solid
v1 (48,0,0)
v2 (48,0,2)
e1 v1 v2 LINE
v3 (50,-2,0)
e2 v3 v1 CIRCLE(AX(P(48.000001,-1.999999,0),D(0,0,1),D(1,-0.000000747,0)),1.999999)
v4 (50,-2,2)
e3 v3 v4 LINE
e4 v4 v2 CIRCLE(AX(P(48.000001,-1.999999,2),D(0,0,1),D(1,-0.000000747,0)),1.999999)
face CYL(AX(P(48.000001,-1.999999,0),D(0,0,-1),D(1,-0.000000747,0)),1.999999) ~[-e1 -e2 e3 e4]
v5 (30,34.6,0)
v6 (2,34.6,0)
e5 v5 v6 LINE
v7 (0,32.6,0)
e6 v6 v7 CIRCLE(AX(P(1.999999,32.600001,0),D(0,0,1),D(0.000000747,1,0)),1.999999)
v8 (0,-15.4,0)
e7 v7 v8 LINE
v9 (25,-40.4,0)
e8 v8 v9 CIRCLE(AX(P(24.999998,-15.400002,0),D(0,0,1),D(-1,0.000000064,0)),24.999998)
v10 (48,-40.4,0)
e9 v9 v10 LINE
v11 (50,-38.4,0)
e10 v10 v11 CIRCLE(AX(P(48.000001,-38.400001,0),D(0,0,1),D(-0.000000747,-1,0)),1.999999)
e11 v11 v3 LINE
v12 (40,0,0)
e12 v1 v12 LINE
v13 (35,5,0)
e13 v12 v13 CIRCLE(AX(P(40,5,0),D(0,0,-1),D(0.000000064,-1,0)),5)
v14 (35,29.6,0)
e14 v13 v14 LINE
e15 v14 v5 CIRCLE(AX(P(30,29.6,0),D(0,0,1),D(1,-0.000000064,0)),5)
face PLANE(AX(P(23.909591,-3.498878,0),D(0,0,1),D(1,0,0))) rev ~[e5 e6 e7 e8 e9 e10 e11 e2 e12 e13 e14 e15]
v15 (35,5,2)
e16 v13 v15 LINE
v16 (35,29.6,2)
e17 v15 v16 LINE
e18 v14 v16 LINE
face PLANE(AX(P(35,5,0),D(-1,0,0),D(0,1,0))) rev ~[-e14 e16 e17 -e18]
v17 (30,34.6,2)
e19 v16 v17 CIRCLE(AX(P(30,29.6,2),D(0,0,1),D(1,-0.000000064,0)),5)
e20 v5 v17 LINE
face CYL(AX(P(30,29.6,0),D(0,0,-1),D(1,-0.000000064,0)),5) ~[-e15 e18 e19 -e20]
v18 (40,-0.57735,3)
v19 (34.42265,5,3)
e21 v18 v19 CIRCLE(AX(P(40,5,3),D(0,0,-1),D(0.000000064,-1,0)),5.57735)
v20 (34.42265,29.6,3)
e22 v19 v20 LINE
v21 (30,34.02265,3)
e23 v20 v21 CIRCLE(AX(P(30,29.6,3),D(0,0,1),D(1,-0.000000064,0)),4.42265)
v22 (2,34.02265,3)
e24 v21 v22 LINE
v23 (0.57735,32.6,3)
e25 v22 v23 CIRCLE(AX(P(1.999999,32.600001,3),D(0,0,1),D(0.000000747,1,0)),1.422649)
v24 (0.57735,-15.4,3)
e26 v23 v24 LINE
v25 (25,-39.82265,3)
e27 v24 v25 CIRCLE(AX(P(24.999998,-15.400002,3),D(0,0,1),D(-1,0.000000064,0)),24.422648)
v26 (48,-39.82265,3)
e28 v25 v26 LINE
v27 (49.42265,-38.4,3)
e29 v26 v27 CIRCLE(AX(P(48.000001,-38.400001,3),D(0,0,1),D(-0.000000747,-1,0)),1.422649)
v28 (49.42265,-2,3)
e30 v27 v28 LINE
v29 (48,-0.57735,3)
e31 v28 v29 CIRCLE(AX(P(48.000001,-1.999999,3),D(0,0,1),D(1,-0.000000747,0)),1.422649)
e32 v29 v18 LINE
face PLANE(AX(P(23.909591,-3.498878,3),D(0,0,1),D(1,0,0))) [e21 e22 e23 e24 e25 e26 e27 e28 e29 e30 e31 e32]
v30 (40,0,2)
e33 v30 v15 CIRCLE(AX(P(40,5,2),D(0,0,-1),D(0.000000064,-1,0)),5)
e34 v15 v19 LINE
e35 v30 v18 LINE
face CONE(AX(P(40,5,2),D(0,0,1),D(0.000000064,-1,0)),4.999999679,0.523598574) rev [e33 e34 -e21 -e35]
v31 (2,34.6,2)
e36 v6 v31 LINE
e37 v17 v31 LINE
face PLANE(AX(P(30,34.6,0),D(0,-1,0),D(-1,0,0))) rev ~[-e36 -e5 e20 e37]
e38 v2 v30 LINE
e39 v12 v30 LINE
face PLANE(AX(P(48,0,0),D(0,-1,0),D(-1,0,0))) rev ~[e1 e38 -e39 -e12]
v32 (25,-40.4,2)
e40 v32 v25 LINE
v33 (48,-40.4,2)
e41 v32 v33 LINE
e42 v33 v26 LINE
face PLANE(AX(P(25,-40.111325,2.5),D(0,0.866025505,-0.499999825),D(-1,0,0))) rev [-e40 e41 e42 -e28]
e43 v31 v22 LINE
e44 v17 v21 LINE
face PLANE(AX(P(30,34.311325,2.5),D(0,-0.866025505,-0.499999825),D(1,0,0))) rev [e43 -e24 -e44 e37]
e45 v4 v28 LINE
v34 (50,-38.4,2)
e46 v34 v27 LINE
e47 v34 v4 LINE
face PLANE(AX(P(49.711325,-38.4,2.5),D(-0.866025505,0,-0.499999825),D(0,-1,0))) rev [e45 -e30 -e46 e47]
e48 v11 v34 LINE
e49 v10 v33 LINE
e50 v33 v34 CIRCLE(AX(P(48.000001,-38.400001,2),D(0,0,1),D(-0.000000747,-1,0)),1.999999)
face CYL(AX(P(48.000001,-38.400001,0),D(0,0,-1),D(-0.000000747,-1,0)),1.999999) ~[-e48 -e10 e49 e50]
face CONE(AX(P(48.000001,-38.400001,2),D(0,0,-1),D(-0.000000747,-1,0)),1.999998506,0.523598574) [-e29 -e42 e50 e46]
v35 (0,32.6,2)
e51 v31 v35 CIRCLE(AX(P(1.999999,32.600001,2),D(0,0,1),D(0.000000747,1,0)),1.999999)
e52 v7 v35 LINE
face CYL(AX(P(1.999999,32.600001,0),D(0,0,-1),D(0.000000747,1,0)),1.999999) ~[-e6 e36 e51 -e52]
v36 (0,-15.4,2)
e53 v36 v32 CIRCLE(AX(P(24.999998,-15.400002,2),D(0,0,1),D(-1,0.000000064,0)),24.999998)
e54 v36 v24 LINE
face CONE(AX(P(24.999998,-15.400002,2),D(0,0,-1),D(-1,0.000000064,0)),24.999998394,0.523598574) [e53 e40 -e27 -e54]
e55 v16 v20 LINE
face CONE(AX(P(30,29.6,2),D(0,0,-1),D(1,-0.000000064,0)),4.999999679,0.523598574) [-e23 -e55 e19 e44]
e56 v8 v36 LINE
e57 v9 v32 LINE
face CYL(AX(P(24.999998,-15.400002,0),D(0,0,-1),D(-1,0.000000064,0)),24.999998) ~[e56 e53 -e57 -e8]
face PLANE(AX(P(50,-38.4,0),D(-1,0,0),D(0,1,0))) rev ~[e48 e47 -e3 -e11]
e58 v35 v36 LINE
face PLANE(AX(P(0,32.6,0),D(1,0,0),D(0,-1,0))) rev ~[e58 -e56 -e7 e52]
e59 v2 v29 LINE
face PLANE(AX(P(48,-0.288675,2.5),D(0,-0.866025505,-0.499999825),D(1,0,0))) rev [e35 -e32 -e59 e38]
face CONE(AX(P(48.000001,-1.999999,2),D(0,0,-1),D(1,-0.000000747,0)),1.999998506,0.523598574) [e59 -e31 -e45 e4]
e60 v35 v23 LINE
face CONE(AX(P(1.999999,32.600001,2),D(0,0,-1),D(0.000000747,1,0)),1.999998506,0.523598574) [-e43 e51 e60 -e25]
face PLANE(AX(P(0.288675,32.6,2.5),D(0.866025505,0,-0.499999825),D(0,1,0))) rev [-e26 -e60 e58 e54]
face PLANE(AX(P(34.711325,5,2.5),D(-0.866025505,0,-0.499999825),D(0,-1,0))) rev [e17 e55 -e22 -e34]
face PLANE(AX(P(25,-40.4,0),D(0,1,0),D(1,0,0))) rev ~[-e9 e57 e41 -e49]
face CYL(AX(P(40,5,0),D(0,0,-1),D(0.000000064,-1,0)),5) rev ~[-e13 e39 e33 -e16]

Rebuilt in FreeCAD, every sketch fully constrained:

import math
import FreeCAD as App
import Part
import Sketcher


def edges_at(feature, points):
    """Names of the edges that pass closest to the given points."""
    edges = feature.Shape.Edges
    near = lambda p: min(range(len(edges)), key=lambda i: edges[i].distToShape(Part.Vertex(*p))[0])
    return sorted({f"Edge{near(p) + 1}" for p in points})

doc = App.newDocument("Part")
body = doc.addObject("PartDesign::Body", "Body")

sketch1 = doc.addObject("Sketcher::SketchObject", "Sketch")
body.addObject(sketch1)
sketch1.AttachmentSupport = (doc.XY_Plane, [""])
sketch1.MapMode = "FlatFace"
sketch1.addGeometry([
    Part.LineSegment(App.Vector(0, 32.6, 0), App.Vector(0, -15.4, 0)),
    Part.ArcOfCircle(Part.Circle(App.Vector(25, -15.4, 0), App.Vector(0, 0, 1), 25), math.radians(180), math.radians(270)),
    Part.LineSegment(App.Vector(25, -40.4, 0), App.Vector(48, -40.4, 0)),
    Part.ArcOfCircle(Part.Circle(App.Vector(48, -38.4, 0), App.Vector(0, 0, 1), 2), math.radians(-90), math.radians(0)),
    Part.LineSegment(App.Vector(50, -38.4, 0), App.Vector(50, -2, 0)),
    Part.ArcOfCircle(Part.Circle(App.Vector(48, -2, 0), App.Vector(0, 0, 1), 2), math.radians(0), math.radians(90)),
    Part.LineSegment(App.Vector(48, 0, 0), App.Vector(40, 0, 0)),
    Part.ArcOfCircle(Part.Circle(App.Vector(40, 5, 0), App.Vector(0, 0, 1), 5), math.radians(180), math.radians(270)),
    Part.LineSegment(App.Vector(35, 5, 0), App.Vector(35, 29.6, 0)),
    Part.ArcOfCircle(Part.Circle(App.Vector(30, 29.6, 0), App.Vector(0, 0, 1), 5), math.radians(0), math.radians(90)),
    Part.LineSegment(App.Vector(30, 34.6, 0), App.Vector(2, 34.6, 0)),
    Part.ArcOfCircle(Part.Circle(App.Vector(2, 32.6, 0), App.Vector(0, 0, 1), 2), math.radians(90), math.radians(180)),
], False)
sketch1.addConstraint([
    Sketcher.Constraint("Tangent", 0, 2, 1, 1),
    Sketcher.Constraint("Tangent", 1, 2, 2, 1),
    Sketcher.Constraint("Tangent", 2, 2, 3, 1),
    Sketcher.Constraint("Tangent", 3, 2, 4, 1),
    Sketcher.Constraint("Tangent", 4, 2, 5, 1),
    Sketcher.Constraint("Tangent", 5, 2, 6, 1),
    Sketcher.Constraint("Tangent", 6, 2, 7, 2),
    Sketcher.Constraint("Tangent", 7, 1, 8, 1),
    Sketcher.Constraint("Tangent", 8, 2, 9, 1),
    Sketcher.Constraint("Tangent", 9, 2, 10, 1),
    Sketcher.Constraint("Tangent", 10, 2, 11, 1),
    Sketcher.Constraint("Tangent", 11, 2, 0, 1),
    Sketcher.Constraint("Vertical", 0),
    Sketcher.Constraint("Horizontal", 2),
    Sketcher.Constraint("Vertical", 4),
    Sketcher.Constraint("Horizontal", 6),
    Sketcher.Constraint("Vertical", 8),
    Sketcher.Constraint("Horizontal", 10),
    Sketcher.Constraint("Equal", 3, 5),
    Sketcher.Constraint("Equal", 7, 9),
    Sketcher.Constraint("Equal", 5, 11),
    Sketcher.Constraint("PointOnObject", 0, 2, -2),
    Sketcher.Constraint("PointOnObject", 5, 2, -1),
    Sketcher.Constraint("Radius", 1, 24.999998),
    Sketcher.Constraint("Radius", 3, 1.999999),
    Sketcher.Constraint("Radius", 7, 5.0),
    Sketcher.Constraint("DistanceX", 2, 1, 2, 2, 23.0),
    Sketcher.Constraint("DistanceX", 6, 2, 6, 1, 8.0),
    Sketcher.Constraint("DistanceY", 0, 2, 0, 1, 48.0),
    Sketcher.Constraint("DistanceY", 4, 1, 4, 2, 36.4),
])
pad1 = doc.addObject("PartDesign::Pad", "Pad")
body.addObject(pad1)
pad1.Profile = sketch1
pad1.Length = 3
doc.recompute()

chamfer = doc.addObject("PartDesign::Chamfer", "Chamfer")
body.addObject(chamfer)
chamfer.Base = (pad1, edges_at(pad1, [(0, 8.6, 3)]))
chamfer.ChamferType = "Two distances"
chamfer.Size = 1
chamfer.Size2 = 0.57735

doc.recompute()
